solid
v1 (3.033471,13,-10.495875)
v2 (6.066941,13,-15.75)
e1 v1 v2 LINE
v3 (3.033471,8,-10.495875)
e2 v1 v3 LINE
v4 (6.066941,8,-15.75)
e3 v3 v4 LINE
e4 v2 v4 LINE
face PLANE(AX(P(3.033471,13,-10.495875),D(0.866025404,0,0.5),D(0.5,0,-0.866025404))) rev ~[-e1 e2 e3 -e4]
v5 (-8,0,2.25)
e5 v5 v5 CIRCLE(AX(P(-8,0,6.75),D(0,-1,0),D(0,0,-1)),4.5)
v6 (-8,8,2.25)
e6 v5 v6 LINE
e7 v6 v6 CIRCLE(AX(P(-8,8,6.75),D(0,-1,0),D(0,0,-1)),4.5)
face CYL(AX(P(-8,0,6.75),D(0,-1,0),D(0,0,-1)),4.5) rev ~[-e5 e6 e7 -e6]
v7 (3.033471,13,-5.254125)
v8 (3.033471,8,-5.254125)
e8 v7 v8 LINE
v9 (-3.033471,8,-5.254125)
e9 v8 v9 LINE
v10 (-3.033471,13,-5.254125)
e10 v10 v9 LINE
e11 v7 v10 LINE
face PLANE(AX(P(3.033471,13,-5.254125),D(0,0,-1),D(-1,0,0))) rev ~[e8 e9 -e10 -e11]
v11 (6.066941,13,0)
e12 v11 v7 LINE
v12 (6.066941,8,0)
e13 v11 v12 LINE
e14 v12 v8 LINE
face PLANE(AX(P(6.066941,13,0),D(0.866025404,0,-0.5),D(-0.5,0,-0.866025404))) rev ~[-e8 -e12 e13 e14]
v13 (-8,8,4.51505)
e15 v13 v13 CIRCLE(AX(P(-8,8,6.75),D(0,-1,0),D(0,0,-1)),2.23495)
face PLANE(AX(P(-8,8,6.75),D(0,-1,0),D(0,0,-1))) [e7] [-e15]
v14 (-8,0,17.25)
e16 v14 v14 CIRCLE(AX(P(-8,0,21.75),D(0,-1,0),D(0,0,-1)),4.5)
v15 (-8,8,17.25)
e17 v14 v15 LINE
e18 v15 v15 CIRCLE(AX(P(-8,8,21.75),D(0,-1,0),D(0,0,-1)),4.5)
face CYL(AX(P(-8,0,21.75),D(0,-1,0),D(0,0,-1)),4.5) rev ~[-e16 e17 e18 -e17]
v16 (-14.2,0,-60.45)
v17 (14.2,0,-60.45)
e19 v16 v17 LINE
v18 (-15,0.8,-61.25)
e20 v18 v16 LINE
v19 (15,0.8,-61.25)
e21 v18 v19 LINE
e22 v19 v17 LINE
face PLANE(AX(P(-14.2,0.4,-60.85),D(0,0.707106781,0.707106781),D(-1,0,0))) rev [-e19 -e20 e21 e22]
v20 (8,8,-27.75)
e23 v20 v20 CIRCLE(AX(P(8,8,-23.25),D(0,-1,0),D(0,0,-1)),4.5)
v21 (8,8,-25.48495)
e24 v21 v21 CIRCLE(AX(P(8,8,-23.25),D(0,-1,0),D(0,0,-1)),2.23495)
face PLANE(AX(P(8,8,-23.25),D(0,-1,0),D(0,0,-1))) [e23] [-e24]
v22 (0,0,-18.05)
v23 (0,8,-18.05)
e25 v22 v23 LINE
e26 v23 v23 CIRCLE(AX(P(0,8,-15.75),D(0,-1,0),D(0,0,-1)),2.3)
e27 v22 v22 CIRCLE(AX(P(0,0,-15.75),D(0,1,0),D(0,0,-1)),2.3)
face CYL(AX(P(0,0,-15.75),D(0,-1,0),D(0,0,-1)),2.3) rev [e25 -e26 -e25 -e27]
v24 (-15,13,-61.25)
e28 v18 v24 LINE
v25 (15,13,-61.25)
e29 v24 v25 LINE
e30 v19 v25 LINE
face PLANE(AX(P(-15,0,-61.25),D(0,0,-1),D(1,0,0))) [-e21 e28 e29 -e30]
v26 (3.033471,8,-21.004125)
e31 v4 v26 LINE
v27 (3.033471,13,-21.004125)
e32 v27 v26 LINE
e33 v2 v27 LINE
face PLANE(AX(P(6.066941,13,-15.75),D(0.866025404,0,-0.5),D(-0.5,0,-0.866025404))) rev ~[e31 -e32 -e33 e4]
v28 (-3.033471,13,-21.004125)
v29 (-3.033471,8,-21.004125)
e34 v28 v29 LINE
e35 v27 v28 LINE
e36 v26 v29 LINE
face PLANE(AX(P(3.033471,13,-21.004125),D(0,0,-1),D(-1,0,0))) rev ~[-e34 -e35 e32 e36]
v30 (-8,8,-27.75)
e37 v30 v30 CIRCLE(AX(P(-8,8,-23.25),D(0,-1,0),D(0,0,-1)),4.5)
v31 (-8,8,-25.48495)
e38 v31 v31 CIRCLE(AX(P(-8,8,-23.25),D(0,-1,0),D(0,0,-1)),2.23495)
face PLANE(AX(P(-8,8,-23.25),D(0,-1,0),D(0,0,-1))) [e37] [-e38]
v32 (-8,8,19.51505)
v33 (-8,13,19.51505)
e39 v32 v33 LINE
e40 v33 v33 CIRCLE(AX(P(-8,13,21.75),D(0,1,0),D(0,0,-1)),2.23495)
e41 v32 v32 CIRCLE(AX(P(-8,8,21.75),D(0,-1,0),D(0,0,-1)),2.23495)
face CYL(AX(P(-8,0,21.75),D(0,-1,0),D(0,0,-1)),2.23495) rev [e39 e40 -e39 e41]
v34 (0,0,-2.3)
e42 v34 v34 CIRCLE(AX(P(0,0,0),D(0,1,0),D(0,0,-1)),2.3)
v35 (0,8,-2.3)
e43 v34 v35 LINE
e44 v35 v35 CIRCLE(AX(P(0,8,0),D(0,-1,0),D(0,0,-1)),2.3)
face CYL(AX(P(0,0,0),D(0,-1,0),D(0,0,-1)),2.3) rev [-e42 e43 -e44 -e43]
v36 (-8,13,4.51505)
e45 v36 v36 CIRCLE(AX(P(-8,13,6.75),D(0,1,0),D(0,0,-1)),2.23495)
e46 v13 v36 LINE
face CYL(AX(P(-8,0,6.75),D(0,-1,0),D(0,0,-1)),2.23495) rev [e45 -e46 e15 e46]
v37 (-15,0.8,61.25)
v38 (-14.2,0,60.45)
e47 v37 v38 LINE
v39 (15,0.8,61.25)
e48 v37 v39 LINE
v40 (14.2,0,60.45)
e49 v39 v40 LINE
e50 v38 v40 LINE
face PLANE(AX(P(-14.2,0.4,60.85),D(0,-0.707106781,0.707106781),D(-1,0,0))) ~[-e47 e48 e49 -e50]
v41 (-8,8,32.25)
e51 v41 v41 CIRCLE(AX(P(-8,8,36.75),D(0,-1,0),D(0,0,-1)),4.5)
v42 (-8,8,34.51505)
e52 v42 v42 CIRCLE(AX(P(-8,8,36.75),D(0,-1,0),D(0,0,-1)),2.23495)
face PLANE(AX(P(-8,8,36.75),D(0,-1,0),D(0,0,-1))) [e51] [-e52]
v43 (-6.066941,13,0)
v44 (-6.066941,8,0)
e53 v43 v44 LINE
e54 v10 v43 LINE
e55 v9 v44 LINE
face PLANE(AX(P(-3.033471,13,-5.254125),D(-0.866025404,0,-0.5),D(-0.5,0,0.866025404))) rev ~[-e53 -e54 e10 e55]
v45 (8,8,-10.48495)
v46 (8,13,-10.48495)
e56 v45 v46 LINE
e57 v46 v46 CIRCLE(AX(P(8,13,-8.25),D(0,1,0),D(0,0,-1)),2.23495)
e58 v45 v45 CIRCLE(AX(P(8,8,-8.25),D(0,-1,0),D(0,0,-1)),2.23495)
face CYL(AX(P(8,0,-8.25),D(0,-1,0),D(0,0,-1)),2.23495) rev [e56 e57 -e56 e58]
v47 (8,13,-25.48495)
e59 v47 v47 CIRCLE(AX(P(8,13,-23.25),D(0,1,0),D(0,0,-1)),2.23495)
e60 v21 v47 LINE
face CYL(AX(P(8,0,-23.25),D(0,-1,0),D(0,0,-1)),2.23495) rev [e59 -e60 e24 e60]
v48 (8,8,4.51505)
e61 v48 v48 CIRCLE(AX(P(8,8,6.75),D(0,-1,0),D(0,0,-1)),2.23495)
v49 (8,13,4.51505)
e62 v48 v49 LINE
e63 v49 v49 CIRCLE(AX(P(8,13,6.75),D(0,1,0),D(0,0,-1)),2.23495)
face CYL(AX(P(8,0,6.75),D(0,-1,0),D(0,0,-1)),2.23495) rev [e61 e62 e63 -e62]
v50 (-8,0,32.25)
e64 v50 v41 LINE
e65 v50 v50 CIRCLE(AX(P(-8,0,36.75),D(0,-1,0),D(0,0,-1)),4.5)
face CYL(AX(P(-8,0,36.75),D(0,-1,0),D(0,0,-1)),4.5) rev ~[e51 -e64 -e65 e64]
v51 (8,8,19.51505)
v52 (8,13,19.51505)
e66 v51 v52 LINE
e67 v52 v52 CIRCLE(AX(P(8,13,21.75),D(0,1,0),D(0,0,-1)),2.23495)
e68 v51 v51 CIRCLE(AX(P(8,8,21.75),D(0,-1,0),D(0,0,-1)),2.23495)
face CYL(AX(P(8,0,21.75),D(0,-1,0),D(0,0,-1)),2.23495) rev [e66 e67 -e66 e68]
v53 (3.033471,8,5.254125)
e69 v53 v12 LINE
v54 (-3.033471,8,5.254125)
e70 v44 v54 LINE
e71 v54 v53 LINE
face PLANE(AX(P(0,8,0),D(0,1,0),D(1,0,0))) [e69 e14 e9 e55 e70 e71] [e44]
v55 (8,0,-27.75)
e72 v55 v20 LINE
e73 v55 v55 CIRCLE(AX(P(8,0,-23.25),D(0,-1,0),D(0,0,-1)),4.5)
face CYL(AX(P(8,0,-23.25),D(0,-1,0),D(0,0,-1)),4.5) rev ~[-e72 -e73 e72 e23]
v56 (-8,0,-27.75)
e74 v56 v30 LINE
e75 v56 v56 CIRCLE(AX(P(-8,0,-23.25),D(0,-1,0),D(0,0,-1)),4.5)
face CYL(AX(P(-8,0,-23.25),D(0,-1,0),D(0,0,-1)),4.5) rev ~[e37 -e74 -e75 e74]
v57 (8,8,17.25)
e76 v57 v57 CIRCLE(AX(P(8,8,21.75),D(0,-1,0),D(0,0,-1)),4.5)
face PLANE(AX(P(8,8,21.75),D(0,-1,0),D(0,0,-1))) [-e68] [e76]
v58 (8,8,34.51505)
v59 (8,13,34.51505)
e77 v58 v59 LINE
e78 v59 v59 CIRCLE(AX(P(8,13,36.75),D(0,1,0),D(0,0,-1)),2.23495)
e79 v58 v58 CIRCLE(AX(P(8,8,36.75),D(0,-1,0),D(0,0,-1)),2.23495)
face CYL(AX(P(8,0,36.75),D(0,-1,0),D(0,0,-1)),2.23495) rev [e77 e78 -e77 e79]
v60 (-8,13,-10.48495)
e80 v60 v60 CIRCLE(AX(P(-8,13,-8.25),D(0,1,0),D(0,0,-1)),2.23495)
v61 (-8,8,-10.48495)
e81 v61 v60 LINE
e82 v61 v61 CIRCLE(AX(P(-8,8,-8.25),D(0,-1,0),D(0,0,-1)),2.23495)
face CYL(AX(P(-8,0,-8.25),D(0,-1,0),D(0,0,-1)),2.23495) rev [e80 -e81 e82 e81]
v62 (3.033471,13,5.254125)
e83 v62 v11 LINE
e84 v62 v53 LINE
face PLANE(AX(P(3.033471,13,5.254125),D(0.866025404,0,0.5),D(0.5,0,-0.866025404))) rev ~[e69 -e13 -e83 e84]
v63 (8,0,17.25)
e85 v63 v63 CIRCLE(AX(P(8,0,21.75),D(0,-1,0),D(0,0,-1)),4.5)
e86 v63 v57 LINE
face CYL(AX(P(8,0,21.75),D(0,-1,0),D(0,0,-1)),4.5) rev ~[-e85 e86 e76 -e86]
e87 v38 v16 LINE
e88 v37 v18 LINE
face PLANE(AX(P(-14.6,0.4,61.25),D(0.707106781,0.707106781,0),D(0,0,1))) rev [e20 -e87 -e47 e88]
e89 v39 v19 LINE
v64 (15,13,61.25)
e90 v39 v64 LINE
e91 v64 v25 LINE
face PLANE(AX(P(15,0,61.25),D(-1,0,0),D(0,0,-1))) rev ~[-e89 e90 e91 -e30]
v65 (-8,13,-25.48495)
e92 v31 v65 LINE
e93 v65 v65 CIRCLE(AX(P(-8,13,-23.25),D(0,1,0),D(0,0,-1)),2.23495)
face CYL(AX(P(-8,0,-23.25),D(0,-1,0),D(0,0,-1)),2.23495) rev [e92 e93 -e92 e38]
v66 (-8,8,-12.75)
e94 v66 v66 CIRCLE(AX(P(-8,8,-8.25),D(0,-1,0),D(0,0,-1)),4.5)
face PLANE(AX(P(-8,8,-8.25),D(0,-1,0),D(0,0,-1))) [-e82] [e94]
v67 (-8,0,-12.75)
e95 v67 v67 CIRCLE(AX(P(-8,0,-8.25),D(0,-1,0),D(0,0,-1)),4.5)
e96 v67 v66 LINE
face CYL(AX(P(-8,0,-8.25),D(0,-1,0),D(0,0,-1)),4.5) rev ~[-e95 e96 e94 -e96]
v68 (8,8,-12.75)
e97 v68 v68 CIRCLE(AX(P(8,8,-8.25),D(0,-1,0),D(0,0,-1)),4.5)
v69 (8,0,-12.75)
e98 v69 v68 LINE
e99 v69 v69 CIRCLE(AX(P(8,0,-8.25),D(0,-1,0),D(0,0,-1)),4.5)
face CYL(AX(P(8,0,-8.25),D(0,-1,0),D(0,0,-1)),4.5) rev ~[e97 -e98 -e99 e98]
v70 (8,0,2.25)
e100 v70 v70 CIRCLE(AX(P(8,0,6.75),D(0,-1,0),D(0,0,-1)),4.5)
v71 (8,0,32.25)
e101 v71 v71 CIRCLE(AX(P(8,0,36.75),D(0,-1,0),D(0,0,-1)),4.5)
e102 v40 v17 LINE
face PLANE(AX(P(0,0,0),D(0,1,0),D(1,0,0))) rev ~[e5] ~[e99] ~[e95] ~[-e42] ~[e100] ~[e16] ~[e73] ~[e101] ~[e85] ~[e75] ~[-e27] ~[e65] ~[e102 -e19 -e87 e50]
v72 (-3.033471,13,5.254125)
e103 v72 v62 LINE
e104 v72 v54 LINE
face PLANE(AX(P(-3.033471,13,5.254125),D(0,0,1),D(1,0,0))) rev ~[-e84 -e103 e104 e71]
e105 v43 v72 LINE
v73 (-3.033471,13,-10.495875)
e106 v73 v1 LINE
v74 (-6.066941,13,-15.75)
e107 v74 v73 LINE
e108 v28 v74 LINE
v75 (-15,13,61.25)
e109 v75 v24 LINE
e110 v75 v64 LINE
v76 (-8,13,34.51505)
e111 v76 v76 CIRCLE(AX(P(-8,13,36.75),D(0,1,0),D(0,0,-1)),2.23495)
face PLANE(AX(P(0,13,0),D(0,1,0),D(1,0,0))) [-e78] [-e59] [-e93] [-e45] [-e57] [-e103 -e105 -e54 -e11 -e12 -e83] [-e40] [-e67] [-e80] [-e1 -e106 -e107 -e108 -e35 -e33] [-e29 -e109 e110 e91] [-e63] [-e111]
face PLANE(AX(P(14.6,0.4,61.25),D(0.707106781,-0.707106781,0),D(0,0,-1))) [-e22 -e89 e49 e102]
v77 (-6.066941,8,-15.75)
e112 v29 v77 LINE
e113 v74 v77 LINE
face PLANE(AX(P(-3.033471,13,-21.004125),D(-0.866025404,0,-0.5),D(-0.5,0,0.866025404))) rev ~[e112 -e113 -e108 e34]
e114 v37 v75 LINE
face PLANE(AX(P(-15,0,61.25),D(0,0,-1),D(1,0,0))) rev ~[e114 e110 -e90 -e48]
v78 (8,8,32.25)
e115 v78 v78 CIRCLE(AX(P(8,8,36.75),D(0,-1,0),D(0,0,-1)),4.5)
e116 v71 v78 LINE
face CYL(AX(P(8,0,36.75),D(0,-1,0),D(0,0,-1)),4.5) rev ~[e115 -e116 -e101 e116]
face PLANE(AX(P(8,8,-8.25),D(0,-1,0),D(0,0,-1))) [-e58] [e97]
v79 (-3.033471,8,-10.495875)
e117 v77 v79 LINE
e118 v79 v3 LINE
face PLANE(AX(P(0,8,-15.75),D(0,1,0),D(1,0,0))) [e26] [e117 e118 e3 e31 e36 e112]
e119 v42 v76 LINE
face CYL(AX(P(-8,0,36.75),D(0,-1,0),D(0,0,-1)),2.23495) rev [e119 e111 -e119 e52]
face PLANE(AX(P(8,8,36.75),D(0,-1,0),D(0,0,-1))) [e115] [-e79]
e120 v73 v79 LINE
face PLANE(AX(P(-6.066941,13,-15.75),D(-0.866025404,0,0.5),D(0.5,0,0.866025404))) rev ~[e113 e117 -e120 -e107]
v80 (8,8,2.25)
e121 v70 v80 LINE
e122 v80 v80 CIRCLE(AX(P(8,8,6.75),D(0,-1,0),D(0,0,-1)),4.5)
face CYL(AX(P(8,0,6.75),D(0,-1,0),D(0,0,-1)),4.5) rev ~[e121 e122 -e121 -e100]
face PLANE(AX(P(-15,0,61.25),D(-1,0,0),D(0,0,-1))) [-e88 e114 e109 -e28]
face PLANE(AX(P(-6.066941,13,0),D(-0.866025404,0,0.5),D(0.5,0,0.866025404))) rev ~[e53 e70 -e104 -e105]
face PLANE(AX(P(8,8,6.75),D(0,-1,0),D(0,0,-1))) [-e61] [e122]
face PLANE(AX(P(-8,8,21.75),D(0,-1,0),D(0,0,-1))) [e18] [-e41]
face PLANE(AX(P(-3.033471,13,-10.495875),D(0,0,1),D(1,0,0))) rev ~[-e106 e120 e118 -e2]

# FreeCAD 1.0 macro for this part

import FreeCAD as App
import Part
import Sketcher
Q = App.Units.Quantity


def edges_at(feature, points):
    """Names of the edges that pass closest to the given points."""
    edges = feature.Shape.Edges
    near = lambda p: min(range(len(edges)), key=lambda i: edges[i].distToShape(Part.Vertex(*p))[0])
    return sorted({f"Edge{near(p) + 1}" for p in points})

doc = App.newDocument("Part")
body = doc.addObject("PartDesign::Body", "Body")

# Sketch on XZ plane
sketch1 = doc.addObject("Sketcher::SketchObject", "Sketch")
body.addObject(sketch1)
sketch1.AttachmentSupport = (doc.XZ_Plane, [""])
sketch1.MapMode = "FlatFace"
sketch1.addGeometry([
    Part.LineSegment(App.Vector(-15, -61.25, 0), App.Vector(-15, 61.25, 0)),  # 0
    Part.LineSegment(App.Vector(-15, 61.25, 0), App.Vector(15, 61.25, 0)),  # 1
    Part.LineSegment(App.Vector(15, 61.25, 0), App.Vector(15, -61.25, 0)),  # 2
    Part.LineSegment(App.Vector(15, -61.25, 0), App.Vector(-15, -61.25, 0)),  # 3
    Part.Circle(App.Vector(-8, 36.75, 0), App.Vector(0, 0, 1), 2.23495),  # 4
    Part.Circle(App.Vector(-8, 21.75, 0), App.Vector(0, 0, 1), 2.23495),  # 5
    Part.Circle(App.Vector(8, 36.75, 0), App.Vector(0, 0, 1), 2.23495),  # 6
    Part.Circle(App.Vector(8, 21.75, 0), App.Vector(0, 0, 1), 2.23495),  # 7
    Part.Circle(App.Vector(-8, 6.75, 0), App.Vector(0, 0, 1), 2.23495),  # 8
    Part.Circle(App.Vector(-8, -8.25, 0), App.Vector(0, 0, 1), 2.23495),  # 9
    Part.Circle(App.Vector(-8, -23.25, 0), App.Vector(0, 0, 1), 2.23495),  # 10
    Part.Circle(App.Vector(0, 0, 0), App.Vector(0, 0, 1), 2.3),  # 11
    Part.Circle(App.Vector(8, 6.75, 0), App.Vector(0, 0, 1), 2.23495),  # 12
    Part.Circle(App.Vector(8, -8.25, 0), App.Vector(0, 0, 1), 2.23495),  # 13
    Part.Circle(App.Vector(0, -15.75, 0), App.Vector(0, 0, 1), 2.3),  # 14
    Part.Circle(App.Vector(8, -23.25, 0), App.Vector(0, 0, 1), 2.23495),  # 15
], False)
sketch1.addConstraint([
    Sketcher.Constraint("Coincident", 0, 2, 1, 1),
    Sketcher.Constraint("Coincident", 1, 2, 2, 1),
    Sketcher.Constraint("Coincident", 2, 2, 3, 1),
    Sketcher.Constraint("Coincident", 3, 2, 0, 1),
    Sketcher.Constraint("Vertical", 0),
    Sketcher.Constraint("Horizontal", 1),
    Sketcher.Constraint("Vertical", 2),
    Sketcher.Constraint("Horizontal", 3),
    Sketcher.Constraint("Coincident", 11, 3, -1, 1),
    Sketcher.Constraint("Equal", 4, 5),
    Sketcher.Constraint("Equal", 5, 6),
    Sketcher.Constraint("Equal", 6, 7),
    Sketcher.Constraint("Equal", 7, 8),
    Sketcher.Constraint("Equal", 8, 9),
    Sketcher.Constraint("Equal", 9, 10),
    Sketcher.Constraint("Equal", 10, 12),
    Sketcher.Constraint("Equal", 12, 13),
    Sketcher.Constraint("Equal", 11, 14),
    Sketcher.Constraint("Equal", 13, 15),
    Sketcher.Constraint("Symmetric", 0, 2, 2, 2, -1, 1),
    Sketcher.Constraint("Symmetric", 4, 3, 6, 3, -2),
    Sketcher.Constraint("Symmetric", 5, 3, 7, 3, -2),
    Sketcher.Constraint("Symmetric", 8, 3, 12, 3, -2),
    Sketcher.Constraint("Symmetric", 9, 3, 13, 3, -2),
    Sketcher.Constraint("Symmetric", 10, 3, 15, 3, -2),
    Sketcher.Constraint("PointOnObject", 14, 3, -2),
    Sketcher.Constraint("Vertical", 4, 3, 5, 3),
    Sketcher.Constraint("Vertical", 5, 3, 8, 3),
    Sketcher.Constraint("Vertical", 8, 3, 9, 3),
    Sketcher.Constraint("Vertical", 9, 3, 10, 3),
    Sketcher.Constraint("Diameter", 11, 4.6),
    Sketcher.Constraint("DistanceX", 1, 1, 1, 2, 30.0),
    Sketcher.Constraint("DistanceY", 0, 1, 0, 2, 122.5),
    Sketcher.Constraint("DistanceX", 4, 3, -1, 1, 8.0),
    Sketcher.Constraint("DistanceY", 5, 3, 4, 3, 15.0),
    Sketcher.Constraint("DistanceY", 8, 3, 5, 3, 15.0),
    Sketcher.Constraint("DistanceY", 9, 3, 8, 3, 15.0),
    Sketcher.Constraint("DistanceY", 10, 3, 9, 3, 15.0),
    Sketcher.Constraint("DistanceY", 2, 2, 15, 3, 38.0),
    Sketcher.Constraint("Diameter", 4, 4.4699),
    Sketcher.Constraint("DistanceY", 14, 3, 9, 3, 7.5),
])
pad1 = doc.addObject("PartDesign::Pad", "Pad")
body.addObject(pad1)
pad1.Profile = sketch1
pad1.Length = 13
pad1.Reversed = True

# Sketch on XZ plane
sketch2 = doc.addObject("Sketcher::SketchObject", "Sketch001")
body.addObject(sketch2)
sketch2.AttachmentSupport = (doc.XZ_Plane, [""])
sketch2.MapMode = "FlatFace"
sketch2.AttachmentOffset = App.Placement(App.Vector(0, 0, -13), App.Rotation())
sketch2.addGeometry([
    Part.LineSegment(App.Vector(6.066941, 0, 0), App.Vector(3.033471, -5.254125, 0)),  # 0
    Part.LineSegment(App.Vector(3.033471, -5.254125, 0), App.Vector(-3.033471, -5.254125, 0)),  # 1
    Part.LineSegment(App.Vector(-3.033471, -5.254125, 0), App.Vector(-6.066941, 0, 0)),  # 2
    Part.LineSegment(App.Vector(-6.066941, 0, 0), App.Vector(-3.033471, 5.254125, 0)),  # 3
    Part.LineSegment(App.Vector(-3.033471, 5.254125, 0), App.Vector(3.033471, 5.254125, 0)),  # 4
    Part.LineSegment(App.Vector(3.033471, 5.254125, 0), App.Vector(6.066941, 0, 0)),  # 5
    Part.LineSegment(App.Vector(6.066941, -15.75, 0), App.Vector(3.033471, -21.004125, 0)),  # 6
    Part.LineSegment(App.Vector(3.033471, -21.004125, 0), App.Vector(-3.033471, -21.004125, 0)),  # 7
    Part.LineSegment(App.Vector(-3.033471, -21.004125, 0), App.Vector(-6.066941, -15.75, 0)),  # 8
    Part.LineSegment(App.Vector(-6.066941, -15.75, 0), App.Vector(-3.033471, -10.495875, 0)),  # 9
    Part.LineSegment(App.Vector(-3.033471, -10.495875, 0), App.Vector(3.033471, -10.495875, 0)),  # 10
    Part.LineSegment(App.Vector(3.033471, -10.495875, 0), App.Vector(6.066941, -15.75, 0)),  # 11
], False)
sketch2.addConstraint([
    Sketcher.Constraint("Coincident", 0, 2, 1, 1),
    Sketcher.Constraint("Coincident", 1, 2, 2, 1),
    Sketcher.Constraint("Coincident", 2, 2, 3, 1),
    Sketcher.Constraint("Coincident", 3, 2, 4, 1),
    Sketcher.Constraint("Coincident", 4, 2, 5, 1),
    Sketcher.Constraint("Coincident", 5, 2, 0, 1),
    Sketcher.Constraint("Coincident", 6, 2, 7, 1),
    Sketcher.Constraint("Coincident", 7, 2, 8, 1),
    Sketcher.Constraint("Coincident", 8, 2, 9, 1),
    Sketcher.Constraint("Coincident", 9, 2, 10, 1),
    Sketcher.Constraint("Coincident", 10, 2, 11, 1),
    Sketcher.Constraint("Coincident", 11, 2, 6, 1),
    Sketcher.Constraint("Horizontal", 1),
    Sketcher.Constraint("Horizontal", 4),
    Sketcher.Constraint("Horizontal", 7),
    Sketcher.Constraint("Horizontal", 10),
    Sketcher.Constraint("Symmetric", 0, 2, 3, 2, -1, 1),
    Sketcher.Constraint("Symmetric", 2, 2, 5, 2, -1, 1),
    Sketcher.Constraint("Symmetric", 8, 2, 11, 2, -2),
    Sketcher.Constraint("PointOnObject", 2, 2, -1),
    Sketcher.Constraint("Parallel", 2, 5),
    Sketcher.Constraint("Parallel", 3, 6),
    Sketcher.Constraint("Parallel", 5, 8),
    Sketcher.Constraint("Parallel", 6, 9),
    Sketcher.Constraint("Parallel", 8, 11),
    Sketcher.Constraint("Vertical", 1, 2, 3, 2),
    Sketcher.Constraint("Vertical", 4, 2, 6, 2),
    Sketcher.Constraint("Vertical", 2, 2, 8, 2),
    Sketcher.Constraint("Vertical", 7, 2, 9, 2),
    Sketcher.Constraint("Angle", 0, Q("-120 deg")),
    Sketcher.Constraint("DistanceY", 8, 2, -1, 1, 15.75),
    Sketcher.Constraint("DistanceX", 1, 2, 1, 1, 6.066941),
    Sketcher.Constraint("Distance", 0, 6.066941),
])
pocket1 = doc.addObject("PartDesign::Pocket", "Pocket")
body.addObject(pocket1)
pocket1.Profile = sketch2
pocket1.Length = 5
pocket1.Reversed = True
doc.recompute()

chamfer = doc.addObject("PartDesign::Chamfer", "Chamfer")
body.addObject(chamfer)
chamfer.Base = (pocket1, edges_at(pocket1, [(-15, 0, 0), (15, 0, 0)]))
chamfer.Size = 0.8

# Sketch on XZ plane
sketch3 = doc.addObject("Sketcher::SketchObject", "Sketch002")
body.addObject(sketch3)
sketch3.AttachmentSupport = (doc.XZ_Plane, [""])
sketch3.MapMode = "FlatFace"
sketch3.addGeometry([
    Part.Circle(App.Vector(8, 36.75, 0), App.Vector(0, 0, 1), 4.5),  # 0
    Part.Circle(App.Vector(-8, 36.75, 0), App.Vector(0, 0, 1), 4.5),  # 1
    Part.Circle(App.Vector(-8, 21.75, 0), App.Vector(0, 0, 1), 4.5),  # 2
    Part.Circle(App.Vector(-8, 6.75, 0), App.Vector(0, 0, 1), 4.5),  # 3
    Part.Circle(App.Vector(-8, -8.25, 0), App.Vector(0, 0, 1), 4.5),  # 4
    Part.Circle(App.Vector(-8, -23.25, 0), App.Vector(0, 0, 1), 4.5),  # 5
    Part.Circle(App.Vector(8, 21.75, 0), App.Vector(0, 0, 1), 4.5),  # 6
    Part.Circle(App.Vector(8, 6.75, 0), App.Vector(0, 0, 1), 4.5),  # 7
    Part.Circle(App.Vector(8, -8.25, 0), App.Vector(0, 0, 1), 4.5),  # 8
    Part.Circle(App.Vector(8, -23.25, 0), App.Vector(0, 0, 1), 4.5),  # 9
], False)
sketch3.addConstraint([
    Sketcher.Constraint("Equal", 0, 1),
    Sketcher.Constraint("Equal", 1, 2),
    Sketcher.Constraint("Equal", 2, 3),
    Sketcher.Constraint("Equal", 3, 4),
    Sketcher.Constraint("Equal", 4, 5),
    Sketcher.Constraint("Equal", 5, 6),
    Sketcher.Constraint("Equal", 6, 7),
    Sketcher.Constraint("Equal", 7, 8),
    Sketcher.Constraint("Equal", 8, 9),
    Sketcher.Constraint("Symmetric", 0, 3, 1, 3, -2),
    Sketcher.Constraint("Symmetric", 2, 3, 6, 3, -2),
    Sketcher.Constraint("Symmetric", 3, 3, 7, 3, -2),
    Sketcher.Constraint("Symmetric", 4, 3, 8, 3, -2),
    Sketcher.Constraint("Symmetric", 5, 3, 9, 3, -2),
    Sketcher.Constraint("Vertical", 1, 3, 2, 3),
    Sketcher.Constraint("Vertical", 2, 3, 3, 3),
    Sketcher.Constraint("Vertical", 3, 3, 4, 3),
    Sketcher.Constraint("Vertical", 4, 3, 5, 3),
    Sketcher.Constraint("Diameter", 0, 9.0),
    Sketcher.Constraint("DistanceX", -1, 1, 0, 3, 8.0),
    Sketcher.Constraint("DistanceY", 2, 3, 1, 3, 15.0),
    Sketcher.Constraint("DistanceY", 3, 3, 2, 3, 15.0),
    Sketcher.Constraint("DistanceY", 4, 3, 3, 3, 15.0),
    Sketcher.Constraint("DistanceY", 5, 3, 4, 3, 15.0),
    Sketcher.Constraint("DistanceY", -1, 1, 0, 3, 36.75),
])
pocket2 = doc.addObject("PartDesign::Pocket", "Pocket001")
body.addObject(pocket2)
pocket2.Profile = sketch3
pocket2.Length = 8
doc.recompute()

chamfer2 = doc.addObject("PartDesign::Chamfer", "Chamfer001")
body.addObject(chamfer2)
chamfer2.Base = (pocket2, edges_at(pocket2, [(0, 0, -61.25), (0, 0, 61.25)]))
chamfer2.Size = 0.8

doc.recompute()
